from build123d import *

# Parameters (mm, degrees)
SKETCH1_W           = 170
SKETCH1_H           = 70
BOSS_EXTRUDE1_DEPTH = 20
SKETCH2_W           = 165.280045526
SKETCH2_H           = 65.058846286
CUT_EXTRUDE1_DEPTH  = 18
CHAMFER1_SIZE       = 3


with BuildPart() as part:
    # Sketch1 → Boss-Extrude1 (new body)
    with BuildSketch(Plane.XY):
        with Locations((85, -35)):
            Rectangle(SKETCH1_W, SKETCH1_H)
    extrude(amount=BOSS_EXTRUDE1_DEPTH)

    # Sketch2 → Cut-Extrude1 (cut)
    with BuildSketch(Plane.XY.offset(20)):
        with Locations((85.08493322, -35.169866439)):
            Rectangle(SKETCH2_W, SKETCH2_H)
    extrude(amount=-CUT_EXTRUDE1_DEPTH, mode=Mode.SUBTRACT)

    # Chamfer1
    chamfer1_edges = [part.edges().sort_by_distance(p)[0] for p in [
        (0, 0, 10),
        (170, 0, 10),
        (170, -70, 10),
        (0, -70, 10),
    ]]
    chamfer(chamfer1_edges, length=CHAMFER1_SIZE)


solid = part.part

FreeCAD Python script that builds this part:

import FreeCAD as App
import Part
import Sketcher

V = App.Vector


def edges_at(feature, points):
    """Names of the edges that pass closest to the given points."""
    edges = feature.Shape.Edges
    near = lambda p: min(range(len(edges)), key=lambda i: edges[i].distToShape(Part.Vertex(*p))[0])
    return sorted({f"Edge{near(p) + 1}" for p in points})


def add_polygon(sketch, points):
    """Adds a closed chain of lines whose ends are joined by coincident constraints."""
    first, n = sketch.GeometryCount, len(points)
    for a, b in zip(points, points[1:] + points[:1]):
        sketch.addGeometry(Part.LineSegment(App.Vector(*a, 0), App.Vector(*b, 0)), False)
    for i in range(n):
        sketch.addConstraint(Sketcher.Constraint("Coincident", first + i, 2, first + (i + 1) % n, 1))

doc = App.newDocument("Part")
body = doc.addObject("PartDesign::Body", "Body")

sketch1 = body.newObject("Sketcher::SketchObject", "Sketch")
sketch1.AttachmentSupport = (doc.getObject("XY_Plane"), [""])
sketch1.MapMode = "FlatFace"
add_polygon(sketch1, [(0, 0), (0, -70), (170, -70), (170, 0)])
sketch1.addConstraint(Sketcher.Constraint("Vertical", 0))
sketch1.addConstraint(Sketcher.Constraint("Horizontal", 1))
sketch1.addConstraint(Sketcher.Constraint("Vertical", 2))
sketch1.addConstraint(Sketcher.Constraint("Horizontal", 3))
sketch1.addConstraint(Sketcher.Constraint("Coincident", 3, 2, -1, 1))
sketch1.addConstraint(Sketcher.Constraint("DistanceX", 1, 1, 1, 2, 170.0))
sketch1.addConstraint(Sketcher.Constraint("DistanceY", 0, 2, 0, 1, 70.0))
pad1 = body.newObject("PartDesign::Pad", "Pad")
pad1.Profile = sketch1
pad1.Length = 20

sketch2 = body.newObject("Sketcher::SketchObject", "Sketch001")
sketch2.AttachmentSupport = (doc.getObject("XY_Plane"), [""])
sketch2.MapMode = "FlatFace"
sketch2.AttachmentOffset = App.Placement(V(0, 0, 20), App.Rotation())
add_polygon(sketch2, [(2.44491, -2.640443), (2.44491, -67.69929), (167.724956, -67.69929), (167.724956, -2.640443)])
sketch2.addConstraint(Sketcher.Constraint("Vertical", 0))
sketch2.addConstraint(Sketcher.Constraint("Horizontal", 1))
sketch2.addConstraint(Sketcher.Constraint("Vertical", 2))
sketch2.addConstraint(Sketcher.Constraint("Horizontal", 3))
sketch2.addConstraint(Sketcher.Constraint("DistanceX", 1, 1, 1, 2, 165.280046))
sketch2.addConstraint(Sketcher.Constraint("DistanceY", 0, 2, 0, 1, 65.058846))
sketch2.addConstraint(Sketcher.Constraint("DistanceX", -1, 1, 0, 2, 2.44491))
sketch2.addConstraint(Sketcher.Constraint("DistanceY", 0, 2, -1, 1, 67.69929))
pocket1 = body.newObject("PartDesign::Pocket", "Pocket")
pocket1.Profile = sketch2
pocket1.Length = 18
doc.recompute()

chamfer = body.newObject("PartDesign::Chamfer", "Chamfer")
chamfer.Base = (pocket1, edges_at(pocket1, [
    (0, 0, 10),
    (170, 0, 10),
    (170, -70, 10),
    (0, -70, 10),
]))
chamfer.Size = 3

doc.recompute()
